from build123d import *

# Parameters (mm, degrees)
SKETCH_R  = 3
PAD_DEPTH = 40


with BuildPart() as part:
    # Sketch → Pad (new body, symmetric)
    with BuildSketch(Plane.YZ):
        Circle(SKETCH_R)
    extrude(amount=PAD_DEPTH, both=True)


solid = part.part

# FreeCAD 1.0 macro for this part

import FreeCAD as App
import Part
import Sketcher

doc = App.newDocument("Part")
body = doc.addObject("PartDesign::Body", "Body")

# Sketch on YZ plane
sketch1 = body.newObject("Sketcher::SketchObject", "Sketch")
sketch1.AttachmentSupport = (doc.getObject("YZ_Plane"), [""])
sketch1.MapMode = "FlatFace"
sketch1.addGeometry(Part.Circle(App.Vector(0, 0, 0), App.Vector(0, 0, 1), 3), False)
sketch1.addConstraint(Sketcher.Constraint("Coincident", 0, 3, -1, 1))
sketch1.addConstraint(Sketcher.Constraint("Diameter", 0, 6.0))
pad1 = body.newObject("PartDesign::Pad", "Pad")
pad1.Profile = sketch1
pad1.Length = 80
pad1.Midplane = True

doc.recompute()
